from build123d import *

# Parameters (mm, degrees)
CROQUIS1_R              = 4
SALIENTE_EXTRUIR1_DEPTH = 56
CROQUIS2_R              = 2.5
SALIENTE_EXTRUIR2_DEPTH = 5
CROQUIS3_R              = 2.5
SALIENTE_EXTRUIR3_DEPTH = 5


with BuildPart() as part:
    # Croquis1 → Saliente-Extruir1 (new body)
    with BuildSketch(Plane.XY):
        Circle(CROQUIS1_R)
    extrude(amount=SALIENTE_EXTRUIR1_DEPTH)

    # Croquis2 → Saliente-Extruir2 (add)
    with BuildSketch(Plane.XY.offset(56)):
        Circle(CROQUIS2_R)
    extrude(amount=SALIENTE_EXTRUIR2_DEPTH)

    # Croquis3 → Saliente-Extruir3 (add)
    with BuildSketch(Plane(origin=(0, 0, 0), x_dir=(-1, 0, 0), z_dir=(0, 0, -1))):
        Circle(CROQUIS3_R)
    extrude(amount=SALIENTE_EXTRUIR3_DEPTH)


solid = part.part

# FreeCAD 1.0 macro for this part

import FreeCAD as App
import Part
import Sketcher

V = App.Vector

doc = App.newDocument("Part")
body = doc.addObject("PartDesign::Body", "Body")

sketch1 = body.newObject("Sketcher::SketchObject", "Sketch")
sketch1.AttachmentSupport = (doc.getObject("XY_Plane"), [""])
sketch1.MapMode = "FlatFace"
sketch1.addGeometry(Part.Circle(V(0, 0, 0), V(0, 0, 1), 4), False)
sketch1.addConstraint([
    Sketcher.Constraint("Coincident", 0, 3, -1, 1),
    Sketcher.Constraint("Diameter", 0, 8.0),
])
pad1 = body.newObject("PartDesign::Pad", "Pad")
pad1.Profile = sketch1
pad1.Length = 56

sketch2 = body.newObject("Sketcher::SketchObject", "Sketch001")
sketch2.AttachmentSupport = (doc.getObject("XY_Plane"), [""])
sketch2.MapMode = "FlatFace"
sketch2.AttachmentOffset = App.Placement(V(0, 0, 56), App.Rotation())
sketch2.addGeometry(Part.Circle(V(0, 0, 0), V(0, 0, 1), 2.5), False)
sketch2.addConstraint([
    Sketcher.Constraint("Coincident", 0, 3, -1, 1),
    Sketcher.Constraint("Diameter", 0, 5.0),
])
pad2 = body.newObject("PartDesign::Pad", "Pad001")
pad2.Profile = sketch2
pad2.Length = 5

sketch3 = body.newObject("Sketcher::SketchObject", "Sketch002")
sketch3.AttachmentSupport = (doc.getObject("XY_Plane"), [""])
sketch3.MapMode = "FlatFace"
sketch3.addGeometry(Part.Circle(V(0, 0, 0), V(0, 0, 1), 2.5), False)
sketch3.addConstraint([
    Sketcher.Constraint("Coincident", 0, 3, -1, 1),
    Sketcher.Constraint("Diameter", 0, 5.0),
])
pad3 = body.newObject("PartDesign::Pad", "Pad002")
pad3.Profile = sketch3
pad3.Length = 5
pad3.Reversed = True

doc.recompute()
